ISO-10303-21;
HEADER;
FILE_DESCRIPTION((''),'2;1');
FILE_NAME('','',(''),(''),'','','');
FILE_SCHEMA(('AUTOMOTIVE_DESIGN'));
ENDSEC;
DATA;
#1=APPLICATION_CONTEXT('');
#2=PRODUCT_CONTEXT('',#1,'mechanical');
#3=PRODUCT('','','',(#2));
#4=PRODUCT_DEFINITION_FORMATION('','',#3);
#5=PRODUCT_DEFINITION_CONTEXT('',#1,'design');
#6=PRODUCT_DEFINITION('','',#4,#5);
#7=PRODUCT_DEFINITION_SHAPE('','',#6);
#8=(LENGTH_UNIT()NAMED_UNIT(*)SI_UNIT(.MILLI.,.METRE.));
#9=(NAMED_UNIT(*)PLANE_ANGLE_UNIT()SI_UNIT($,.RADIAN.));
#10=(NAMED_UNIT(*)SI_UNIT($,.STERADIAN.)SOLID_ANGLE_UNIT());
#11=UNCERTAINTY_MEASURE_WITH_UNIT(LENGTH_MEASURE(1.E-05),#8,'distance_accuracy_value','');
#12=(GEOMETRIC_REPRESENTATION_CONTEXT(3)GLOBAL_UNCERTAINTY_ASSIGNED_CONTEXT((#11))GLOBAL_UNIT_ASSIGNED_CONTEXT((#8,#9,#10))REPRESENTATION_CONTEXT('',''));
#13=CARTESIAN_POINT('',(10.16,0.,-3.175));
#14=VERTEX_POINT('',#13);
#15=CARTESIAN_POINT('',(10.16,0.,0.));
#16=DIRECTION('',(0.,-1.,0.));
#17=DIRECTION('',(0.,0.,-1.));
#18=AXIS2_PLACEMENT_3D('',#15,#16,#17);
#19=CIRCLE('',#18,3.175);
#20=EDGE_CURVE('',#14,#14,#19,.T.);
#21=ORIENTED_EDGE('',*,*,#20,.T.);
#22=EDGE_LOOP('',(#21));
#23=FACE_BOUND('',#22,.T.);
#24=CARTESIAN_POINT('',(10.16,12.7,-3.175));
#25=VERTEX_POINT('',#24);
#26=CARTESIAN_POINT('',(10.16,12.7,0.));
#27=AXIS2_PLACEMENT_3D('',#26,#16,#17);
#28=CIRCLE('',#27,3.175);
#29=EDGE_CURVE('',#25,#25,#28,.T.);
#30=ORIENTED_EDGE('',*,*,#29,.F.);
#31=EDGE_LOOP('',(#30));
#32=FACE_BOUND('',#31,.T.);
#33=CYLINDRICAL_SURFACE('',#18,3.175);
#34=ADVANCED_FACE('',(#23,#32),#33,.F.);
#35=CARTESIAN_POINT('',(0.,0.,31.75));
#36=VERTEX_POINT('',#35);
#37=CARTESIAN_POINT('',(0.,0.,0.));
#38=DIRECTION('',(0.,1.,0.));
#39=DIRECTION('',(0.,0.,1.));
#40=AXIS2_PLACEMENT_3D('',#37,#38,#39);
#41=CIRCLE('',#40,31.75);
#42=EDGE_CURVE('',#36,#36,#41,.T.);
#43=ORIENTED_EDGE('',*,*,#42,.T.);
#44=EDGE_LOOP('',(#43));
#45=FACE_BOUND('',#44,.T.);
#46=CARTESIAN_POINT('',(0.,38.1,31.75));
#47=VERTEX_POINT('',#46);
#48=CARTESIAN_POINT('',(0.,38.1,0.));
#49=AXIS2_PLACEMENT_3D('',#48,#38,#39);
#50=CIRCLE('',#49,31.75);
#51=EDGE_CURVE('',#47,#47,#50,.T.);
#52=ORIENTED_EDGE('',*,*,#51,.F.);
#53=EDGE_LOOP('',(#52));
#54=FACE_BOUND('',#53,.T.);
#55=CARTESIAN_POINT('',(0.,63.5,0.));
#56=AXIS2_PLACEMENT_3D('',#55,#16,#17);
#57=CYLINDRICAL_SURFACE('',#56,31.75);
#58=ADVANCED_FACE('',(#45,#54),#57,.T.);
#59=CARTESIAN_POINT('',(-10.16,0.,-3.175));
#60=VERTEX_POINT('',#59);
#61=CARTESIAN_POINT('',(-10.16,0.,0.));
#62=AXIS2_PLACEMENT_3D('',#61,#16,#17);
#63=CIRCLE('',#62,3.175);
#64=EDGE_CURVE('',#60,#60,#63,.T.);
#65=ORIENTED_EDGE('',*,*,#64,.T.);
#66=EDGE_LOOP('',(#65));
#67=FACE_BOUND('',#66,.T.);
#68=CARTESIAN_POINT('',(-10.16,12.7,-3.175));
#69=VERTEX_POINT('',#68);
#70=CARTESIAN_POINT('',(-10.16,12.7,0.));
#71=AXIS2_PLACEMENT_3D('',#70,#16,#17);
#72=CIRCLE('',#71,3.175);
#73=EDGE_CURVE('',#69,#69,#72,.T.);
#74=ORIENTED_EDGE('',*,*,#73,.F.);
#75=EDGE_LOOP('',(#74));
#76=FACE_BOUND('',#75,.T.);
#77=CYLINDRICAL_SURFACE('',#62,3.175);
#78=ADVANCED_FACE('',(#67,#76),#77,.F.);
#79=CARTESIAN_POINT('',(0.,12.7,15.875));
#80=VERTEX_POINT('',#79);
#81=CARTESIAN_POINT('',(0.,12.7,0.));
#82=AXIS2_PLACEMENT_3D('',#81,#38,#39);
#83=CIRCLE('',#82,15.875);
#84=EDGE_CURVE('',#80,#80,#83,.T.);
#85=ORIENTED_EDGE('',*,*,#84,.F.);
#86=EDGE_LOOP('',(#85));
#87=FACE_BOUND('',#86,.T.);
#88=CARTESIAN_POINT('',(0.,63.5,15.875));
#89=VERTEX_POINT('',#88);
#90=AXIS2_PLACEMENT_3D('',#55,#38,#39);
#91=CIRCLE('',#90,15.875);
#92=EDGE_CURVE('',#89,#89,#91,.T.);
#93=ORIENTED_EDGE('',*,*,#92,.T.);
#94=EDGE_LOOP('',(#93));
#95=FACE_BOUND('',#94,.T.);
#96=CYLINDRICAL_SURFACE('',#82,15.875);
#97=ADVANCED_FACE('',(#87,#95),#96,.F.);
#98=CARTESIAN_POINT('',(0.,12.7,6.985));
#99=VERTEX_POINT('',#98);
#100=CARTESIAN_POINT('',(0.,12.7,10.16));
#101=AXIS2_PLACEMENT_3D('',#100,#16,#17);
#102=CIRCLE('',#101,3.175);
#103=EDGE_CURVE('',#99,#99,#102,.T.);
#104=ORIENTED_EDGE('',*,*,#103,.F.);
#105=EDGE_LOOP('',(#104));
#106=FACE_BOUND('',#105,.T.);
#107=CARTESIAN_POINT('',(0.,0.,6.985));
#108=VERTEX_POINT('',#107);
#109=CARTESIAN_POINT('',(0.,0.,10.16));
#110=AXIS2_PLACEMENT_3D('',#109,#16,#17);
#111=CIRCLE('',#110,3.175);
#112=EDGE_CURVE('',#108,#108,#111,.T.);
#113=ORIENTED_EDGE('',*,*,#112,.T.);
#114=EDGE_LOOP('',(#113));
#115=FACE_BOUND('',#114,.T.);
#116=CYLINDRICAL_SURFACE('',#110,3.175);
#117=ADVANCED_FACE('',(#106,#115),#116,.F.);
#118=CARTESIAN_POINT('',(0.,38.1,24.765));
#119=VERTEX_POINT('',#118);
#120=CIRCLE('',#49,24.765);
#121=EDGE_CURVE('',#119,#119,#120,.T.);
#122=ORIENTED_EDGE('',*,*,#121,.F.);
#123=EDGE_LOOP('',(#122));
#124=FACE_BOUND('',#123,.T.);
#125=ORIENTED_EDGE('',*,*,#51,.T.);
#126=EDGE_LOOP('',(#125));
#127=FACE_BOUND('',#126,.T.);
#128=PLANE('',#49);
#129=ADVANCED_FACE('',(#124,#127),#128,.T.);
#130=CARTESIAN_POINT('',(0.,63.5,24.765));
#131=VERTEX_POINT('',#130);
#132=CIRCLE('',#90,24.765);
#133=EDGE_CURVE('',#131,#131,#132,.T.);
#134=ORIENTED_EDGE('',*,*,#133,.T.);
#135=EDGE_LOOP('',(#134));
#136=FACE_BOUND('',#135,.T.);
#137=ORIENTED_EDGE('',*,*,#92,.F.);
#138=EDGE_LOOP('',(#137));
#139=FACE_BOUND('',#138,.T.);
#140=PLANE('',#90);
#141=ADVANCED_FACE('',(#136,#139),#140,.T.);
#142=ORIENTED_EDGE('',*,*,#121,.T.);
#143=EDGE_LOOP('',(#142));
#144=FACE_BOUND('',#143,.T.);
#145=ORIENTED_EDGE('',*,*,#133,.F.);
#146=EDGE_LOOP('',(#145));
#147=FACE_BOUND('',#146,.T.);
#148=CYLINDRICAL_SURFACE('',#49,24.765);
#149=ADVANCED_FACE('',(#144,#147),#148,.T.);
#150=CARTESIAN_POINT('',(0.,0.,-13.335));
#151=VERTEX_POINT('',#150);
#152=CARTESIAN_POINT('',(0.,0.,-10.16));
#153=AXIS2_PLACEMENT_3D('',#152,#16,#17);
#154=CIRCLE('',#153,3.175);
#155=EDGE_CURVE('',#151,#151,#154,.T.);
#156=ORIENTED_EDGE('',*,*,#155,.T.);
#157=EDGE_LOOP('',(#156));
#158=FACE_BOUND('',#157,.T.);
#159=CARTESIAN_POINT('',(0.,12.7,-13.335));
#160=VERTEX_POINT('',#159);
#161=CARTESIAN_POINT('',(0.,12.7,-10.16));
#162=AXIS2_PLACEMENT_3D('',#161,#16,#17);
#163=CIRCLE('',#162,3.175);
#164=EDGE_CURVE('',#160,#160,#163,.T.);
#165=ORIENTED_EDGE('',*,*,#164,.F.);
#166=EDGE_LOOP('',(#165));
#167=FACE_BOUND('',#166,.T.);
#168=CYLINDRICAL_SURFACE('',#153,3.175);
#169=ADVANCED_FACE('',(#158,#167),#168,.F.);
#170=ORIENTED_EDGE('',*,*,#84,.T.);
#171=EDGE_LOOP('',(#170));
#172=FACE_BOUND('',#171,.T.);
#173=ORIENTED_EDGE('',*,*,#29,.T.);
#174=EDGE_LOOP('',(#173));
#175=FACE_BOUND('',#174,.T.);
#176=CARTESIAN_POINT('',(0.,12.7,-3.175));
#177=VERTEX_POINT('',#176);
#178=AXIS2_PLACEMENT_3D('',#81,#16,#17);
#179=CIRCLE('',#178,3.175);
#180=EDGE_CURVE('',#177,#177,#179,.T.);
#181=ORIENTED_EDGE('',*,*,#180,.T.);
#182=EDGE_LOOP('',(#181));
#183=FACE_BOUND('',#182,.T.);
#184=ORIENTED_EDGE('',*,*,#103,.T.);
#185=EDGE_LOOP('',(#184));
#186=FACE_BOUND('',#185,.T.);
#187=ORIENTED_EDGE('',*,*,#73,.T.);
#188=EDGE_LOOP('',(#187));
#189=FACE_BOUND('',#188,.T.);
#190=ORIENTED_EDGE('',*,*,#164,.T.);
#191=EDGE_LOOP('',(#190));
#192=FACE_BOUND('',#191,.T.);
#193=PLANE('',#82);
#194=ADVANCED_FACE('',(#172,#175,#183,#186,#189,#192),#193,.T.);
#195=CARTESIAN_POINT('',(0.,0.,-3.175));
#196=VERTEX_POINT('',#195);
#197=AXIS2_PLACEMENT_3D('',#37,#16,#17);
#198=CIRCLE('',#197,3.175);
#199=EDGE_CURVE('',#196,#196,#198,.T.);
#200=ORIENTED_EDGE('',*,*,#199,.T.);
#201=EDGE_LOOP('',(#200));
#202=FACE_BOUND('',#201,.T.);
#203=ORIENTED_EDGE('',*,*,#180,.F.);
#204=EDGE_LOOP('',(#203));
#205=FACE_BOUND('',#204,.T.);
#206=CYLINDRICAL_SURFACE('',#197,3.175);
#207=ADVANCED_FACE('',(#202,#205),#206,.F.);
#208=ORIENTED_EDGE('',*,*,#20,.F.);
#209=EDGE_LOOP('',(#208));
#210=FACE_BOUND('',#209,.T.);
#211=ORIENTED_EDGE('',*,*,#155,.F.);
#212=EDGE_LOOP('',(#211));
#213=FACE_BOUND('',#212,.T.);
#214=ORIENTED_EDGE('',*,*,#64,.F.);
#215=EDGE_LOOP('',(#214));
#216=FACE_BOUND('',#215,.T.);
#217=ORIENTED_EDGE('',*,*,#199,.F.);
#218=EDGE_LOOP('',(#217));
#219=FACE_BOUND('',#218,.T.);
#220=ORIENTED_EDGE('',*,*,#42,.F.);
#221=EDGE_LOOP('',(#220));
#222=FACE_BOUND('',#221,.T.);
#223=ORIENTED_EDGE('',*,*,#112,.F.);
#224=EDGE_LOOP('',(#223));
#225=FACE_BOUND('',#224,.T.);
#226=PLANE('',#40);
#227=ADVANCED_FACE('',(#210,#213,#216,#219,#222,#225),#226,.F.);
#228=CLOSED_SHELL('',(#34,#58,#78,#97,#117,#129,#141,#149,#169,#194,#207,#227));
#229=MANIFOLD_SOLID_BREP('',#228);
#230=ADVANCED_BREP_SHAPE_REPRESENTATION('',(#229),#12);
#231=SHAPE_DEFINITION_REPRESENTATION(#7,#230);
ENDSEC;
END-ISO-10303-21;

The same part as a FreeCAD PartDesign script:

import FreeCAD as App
import Part
import Sketcher

V = App.Vector
Q = App.Units.Quantity

doc = App.newDocument("Part")
params = doc.addObject("Spreadsheet::Sheet", "Params")
for row, (alias, value) in enumerate([
    ("sketch1_diameter", "2.5 in"),
    ("pad1_length", "2.5 in"),
    ("sketch2_diameter", "2.5 in"),
    ("sketch2_diameter2", "1.95 in"),
    ("pocket1_length", "1 in"),
    ("sketch3_diameter", "1.25 in"),
    ("pocket2_length", "2 in"),
    ("sketch4_width", "0.5 in"),
    ("sketch4_height", "0.125 in"),
    ("groove_angle", "360 deg"),
    ("linearpattern_pitch", "0.4 in"),
    ("sketch5_height", "0.5 in"),
    ("sketch5_width", "0.125 in"),
    ("groove2_angle", "360 deg"),
    ("sketch6_width", "0.5 in"),
    ("sketch6_height", "0.125 in"),
    ("groove3_angle", "360 deg"),
    ("sketch7_height", "0.5 in"),
    ("sketch7_width", "0.125 in"),
    ("groove4_angle", "360 deg"),
], start=1):
    params.set(f"A{row}", alias)
    params.set(f"B{row}", "=" + value)
    params.setAlias(f"B{row}", alias)

body = doc.addObject("PartDesign::Body", "Body")

sketch1 = doc.addObject("Sketcher::SketchObject", "Sketch")
body.addObject(sketch1)
sketch1.AttachmentSupport = (doc.XZ_Plane, [""])
sketch1.MapMode = "FlatFace"
sketch1.addGeometry(Part.Circle(V(0, 0, 0), V(0, 0, 1), 32), False)
sketch1.addConstraint([
    Sketcher.Constraint("Coincident", 0, 3, -1, 1),
    Sketcher.Constraint("Diameter", 0, Q("2.5 in")),
])
sketch1.setExpression("Constraints[1]", "Params.sketch1_diameter")
pad1 = doc.addObject("PartDesign::Pad", "Pad")
body.addObject(pad1)
pad1.Profile = sketch1
pad1.setExpression("Length", "Params.pad1_length")
pad1.Reversed = True

sketch2 = doc.addObject("Sketcher::SketchObject", "Sketch001")
body.addObject(sketch2)
sketch2.AttachmentSupport = (doc.XZ_Plane, [""])
sketch2.MapMode = "FlatFace"
sketch2.AttachmentOffset = App.Placement(V(0, 0, -1.5 * 25.4), App.Rotation())
sketch2.addGeometry([
    Part.Circle(V(0, 0, 0), V(0, 0, 1), 32),
    Part.Circle(V(0, 0, 0), V(0, 0, 1), 25),
], False)
sketch2.addConstraint([
    Sketcher.Constraint("Coincident", 0, 3, -1, 1),
    Sketcher.Constraint("Coincident", 1, 3, -1, 1),
    Sketcher.Constraint("Diameter", 0, Q("2.5 in")),
    Sketcher.Constraint("Diameter", 1, Q("1.95 in")),
])
sketch2.setExpression("Constraints[2]", "Params.sketch2_diameter")
sketch2.setExpression("Constraints[3]", "Params.sketch2_diameter2")
pocket1 = doc.addObject("PartDesign::Pocket", "Pocket")
body.addObject(pocket1)
pocket1.Profile = sketch2
pocket1.setExpression("Length", "Params.pocket1_length")

sketch3 = doc.addObject("Sketcher::SketchObject", "Sketch002")
body.addObject(sketch3)
sketch3.AttachmentSupport = (doc.XZ_Plane, [""])
sketch3.MapMode = "FlatFace"
sketch3.AttachmentOffset = App.Placement(V(0, 0, -2.5 * 25.4), App.Rotation())
sketch3.addGeometry(Part.Circle(V(0, 0, 0), V(0, 0, 1), 16), False)
sketch3.addConstraint([
    Sketcher.Constraint("Coincident", 0, 3, -1, 1),
    Sketcher.Constraint("Diameter", 0, Q("1.25 in")),
])
sketch3.setExpression("Constraints[1]", "Params.sketch3_diameter")
pocket2 = doc.addObject("PartDesign::Pocket", "Pocket001")
body.addObject(pocket2)
pocket2.Profile = sketch3
pocket2.setExpression("Length", "Params.pocket2_length")
pocket2.Reversed = True

sketch4 = doc.addObject("Sketcher::SketchObject", "Sketch003")
body.addObject(sketch4)
sketch4.AttachmentSupport = (doc.YZ_Plane, [""])
sketch4.MapMode = "FlatFace"
sketch4.addGeometry([
    Part.LineSegment(V(14.6, -10.2, 0), V(0, -10.2, 0)),
    Part.LineSegment(V(0, -10.2, 0), V(0, -13.3, 0)),
    Part.LineSegment(V(0, -13.3, 0), V(12.7, -13.3, 0)),
    Part.LineSegment(V(12.7, -13.3, 0), V(14.6, -10.2, 0)),
], False)
sketch4.addGeometry(Part.LineSegment(V(0, -10.2, 0), V(14.6, -10.2, 0)), True)
sketch4.addConstraint([
    Sketcher.Constraint("Coincident", 0, 2, 1, 1),
    Sketcher.Constraint("Coincident", 1, 2, 2, 1),
    Sketcher.Constraint("Coincident", 2, 2, 3, 1),
    Sketcher.Constraint("Coincident", 3, 2, 0, 1),
    Sketcher.Constraint("Horizontal", 0),
    Sketcher.Constraint("Vertical", 1),
    Sketcher.Constraint("Horizontal", 2),
    Sketcher.Constraint("Horizontal", 4),
    Sketcher.Constraint("Coincident", 4, 1, 0, 2),
    Sketcher.Constraint("PointOnObject", 0, 2, -2),
    Sketcher.Constraint("Equal", 0, 4),
    Sketcher.Constraint("DistanceX", 2, 1, 2, 2, Q("0.5 in")),
    Sketcher.Constraint("Angle", 3, Q("59 deg")),
    Sketcher.Constraint("DistanceY", 0, 2, -1, 1, Q("0.4 in")),
    Sketcher.Constraint("DistanceY", 1, 2, 1, 1, Q("0.125 in")),
])
sketch4.setExpression("Constraints[11]", "Params.sketch4_width")
sketch4.setExpression("Constraints[14]", "Params.sketch4_height")
groove = doc.addObject("PartDesign::Groove", "Groove")
body.addObject(groove)
groove.Profile = sketch4
groove.ReferenceAxis = (sketch4, ["Axis0"])
groove.setExpression("Angle", "Params.groove_angle")
doc.recompute()

linearpattern = doc.addObject("PartDesign::LinearPattern", "LinearPattern")
body.addObject(linearpattern)
linearpattern.Originals = [groove]
linearpattern.Direction = (doc.Z_Axis, [""])
linearpattern.Mode = "offset"
linearpattern.setExpression("Offset", "Params.linearpattern_pitch")
linearpattern.Occurrences = 2
body.Tip = linearpattern
doc.recompute()

polarpattern = doc.addObject("PartDesign::PolarPattern", "PolarPattern")
body.addObject(polarpattern)
polarpattern.Originals = [groove]
polarpattern.Axis = (doc.Y_Axis, [""])
polarpattern.Angle = 360
polarpattern.Occurrences = 4
body.Tip = polarpattern

sketch5 = doc.addObject("Sketcher::SketchObject", "Sketch004")
body.addObject(sketch5)
sketch5.AttachmentSupport = (doc.XY_Plane, [""])
sketch5.MapMode = "FlatFace"
sketch5.addGeometry([
    Part.LineSegment(V(0, 14.6, 0), V(0, 0, 0)),
    Part.LineSegment(V(0, 0, 0), V(-3.2, 0, 0)),
    Part.LineSegment(V(-3.2, 0, 0), V(-3.2, 12.7, 0)),
    Part.LineSegment(V(-3.2, 12.7, 0), V(0, 14.6, 0)),
], False)
sketch5.addConstraint([
    Sketcher.Constraint("Coincident", 0, 2, 1, 1),
    Sketcher.Constraint("Coincident", 1, 2, 2, 1),
    Sketcher.Constraint("Coincident", 2, 2, 3, 1),
    Sketcher.Constraint("Coincident", 3, 2, 0, 1),
    Sketcher.Constraint("Vertical", 0),
    Sketcher.Constraint("Horizontal", 1),
    Sketcher.Constraint("Vertical", 2),
    Sketcher.Constraint("Coincident", 0, 2, -1, 1),
    Sketcher.Constraint("DistanceY", 2, 1, 2, 2, Q("0.5 in")),
    Sketcher.Constraint("Angle", 3, Q("31 deg")),
    Sketcher.Constraint("DistanceX", 1, 2, 1, 1, Q("0.125 in")),
])
sketch5.setExpression("Constraints[8]", "Params.sketch5_height")
sketch5.setExpression("Constraints[10]", "Params.sketch5_width")
groove2 = doc.addObject("PartDesign::Groove", "Groove001")
body.addObject(groove2)
groove2.Profile = sketch5
groove2.ReferenceAxis = (sketch5, ["V_Axis"])
groove2.setExpression("Angle", "Params.groove2_angle")

sketch6 = doc.addObject("Sketcher::SketchObject", "Sketch005")
body.addObject(sketch6)
sketch6.AttachmentSupport = (doc.YZ_Plane, [""])
sketch6.MapMode = "FlatFace"
sketch6.addGeometry([
    Part.LineSegment(V(14.6, 0, 0), V(0, 0, 0)),
    Part.LineSegment(V(0, 0, 0), V(0, 3.2, 0)),
    Part.LineSegment(V(0, 3.2, 0), V(12.7, 3.2, 0)),
    Part.LineSegment(V(12.7, 3.2, 0), V(14.6, 0, 0)),
], False)
sketch6.addConstraint([
    Sketcher.Constraint("Coincident", 0, 2, 1, 1),
    Sketcher.Constraint("Coincident", 1, 2, 2, 1),
    Sketcher.Constraint("Coincident", 2, 2, 3, 1),
    Sketcher.Constraint("Coincident", 3, 2, 0, 1),
    Sketcher.Constraint("Horizontal", 0),
    Sketcher.Constraint("Vertical", 1),
    Sketcher.Constraint("Horizontal", 2),
    Sketcher.Constraint("Coincident", 0, 2, -1, 1),
    Sketcher.Constraint("DistanceX", 2, 1, 2, 2, Q("0.5 in")),
    Sketcher.Constraint("Angle", 3, Q("-59 deg")),
    Sketcher.Constraint("DistanceY", 1, 1, 1, 2, Q("0.125 in")),
])
sketch6.setExpression("Constraints[8]", "Params.sketch6_width")
sketch6.setExpression("Constraints[10]", "Params.sketch6_height")
groove3 = doc.addObject("PartDesign::Groove", "Groove002")
body.addObject(groove3)
groove3.Profile = sketch6
groove3.ReferenceAxis = (sketch6, ["H_Axis"])
groove3.setExpression("Angle", "Params.groove3_angle")

sketch7 = doc.addObject("Sketcher::SketchObject", "Sketch006")
body.addObject(sketch7)
sketch7.AttachmentSupport = (doc.XY_Plane, [""])
sketch7.MapMode = "FlatFace"
sketch7.addGeometry([
    Part.LineSegment(V(0, 14.6, 0), V(0, 0, 0)),
    Part.LineSegment(V(0, 0, 0), V(3.2, 0, 0)),
    Part.LineSegment(V(3.2, 0, 0), V(3.2, 12.7, 0)),
    Part.LineSegment(V(3.2, 12.7, 0), V(0, 14.6, 0)),
], False)
sketch7.addConstraint([
    Sketcher.Constraint("Coincident", 0, 2, 1, 1),
    Sketcher.Constraint("Coincident", 1, 2, 2, 1),
    Sketcher.Constraint("Coincident", 2, 2, 3, 1),
    Sketcher.Constraint("Coincident", 3, 2, 0, 1),
    Sketcher.Constraint("Vertical", 0),
    Sketcher.Constraint("Horizontal", 1),
    Sketcher.Constraint("Vertical", 2),
    Sketcher.Constraint("Coincident", 0, 2, -1, 1),
    Sketcher.Constraint("DistanceY", 2, 1, 2, 2, Q("0.5 in")),
    Sketcher.Constraint("Angle", 3, Q("149 deg")),
    Sketcher.Constraint("DistanceX", 1, 1, 1, 2, Q("0.125 in")),
])
sketch7.setExpression("Constraints[8]", "Params.sketch7_height")
sketch7.setExpression("Constraints[10]", "Params.sketch7_width")
groove4 = doc.addObject("PartDesign::Groove", "Groove003")
body.addObject(groove4)
groove4.Profile = sketch7
groove4.ReferenceAxis = (sketch7, ["V_Axis"])
groove4.setExpression("Angle", "Params.groove4_angle")

doc.recompute()
